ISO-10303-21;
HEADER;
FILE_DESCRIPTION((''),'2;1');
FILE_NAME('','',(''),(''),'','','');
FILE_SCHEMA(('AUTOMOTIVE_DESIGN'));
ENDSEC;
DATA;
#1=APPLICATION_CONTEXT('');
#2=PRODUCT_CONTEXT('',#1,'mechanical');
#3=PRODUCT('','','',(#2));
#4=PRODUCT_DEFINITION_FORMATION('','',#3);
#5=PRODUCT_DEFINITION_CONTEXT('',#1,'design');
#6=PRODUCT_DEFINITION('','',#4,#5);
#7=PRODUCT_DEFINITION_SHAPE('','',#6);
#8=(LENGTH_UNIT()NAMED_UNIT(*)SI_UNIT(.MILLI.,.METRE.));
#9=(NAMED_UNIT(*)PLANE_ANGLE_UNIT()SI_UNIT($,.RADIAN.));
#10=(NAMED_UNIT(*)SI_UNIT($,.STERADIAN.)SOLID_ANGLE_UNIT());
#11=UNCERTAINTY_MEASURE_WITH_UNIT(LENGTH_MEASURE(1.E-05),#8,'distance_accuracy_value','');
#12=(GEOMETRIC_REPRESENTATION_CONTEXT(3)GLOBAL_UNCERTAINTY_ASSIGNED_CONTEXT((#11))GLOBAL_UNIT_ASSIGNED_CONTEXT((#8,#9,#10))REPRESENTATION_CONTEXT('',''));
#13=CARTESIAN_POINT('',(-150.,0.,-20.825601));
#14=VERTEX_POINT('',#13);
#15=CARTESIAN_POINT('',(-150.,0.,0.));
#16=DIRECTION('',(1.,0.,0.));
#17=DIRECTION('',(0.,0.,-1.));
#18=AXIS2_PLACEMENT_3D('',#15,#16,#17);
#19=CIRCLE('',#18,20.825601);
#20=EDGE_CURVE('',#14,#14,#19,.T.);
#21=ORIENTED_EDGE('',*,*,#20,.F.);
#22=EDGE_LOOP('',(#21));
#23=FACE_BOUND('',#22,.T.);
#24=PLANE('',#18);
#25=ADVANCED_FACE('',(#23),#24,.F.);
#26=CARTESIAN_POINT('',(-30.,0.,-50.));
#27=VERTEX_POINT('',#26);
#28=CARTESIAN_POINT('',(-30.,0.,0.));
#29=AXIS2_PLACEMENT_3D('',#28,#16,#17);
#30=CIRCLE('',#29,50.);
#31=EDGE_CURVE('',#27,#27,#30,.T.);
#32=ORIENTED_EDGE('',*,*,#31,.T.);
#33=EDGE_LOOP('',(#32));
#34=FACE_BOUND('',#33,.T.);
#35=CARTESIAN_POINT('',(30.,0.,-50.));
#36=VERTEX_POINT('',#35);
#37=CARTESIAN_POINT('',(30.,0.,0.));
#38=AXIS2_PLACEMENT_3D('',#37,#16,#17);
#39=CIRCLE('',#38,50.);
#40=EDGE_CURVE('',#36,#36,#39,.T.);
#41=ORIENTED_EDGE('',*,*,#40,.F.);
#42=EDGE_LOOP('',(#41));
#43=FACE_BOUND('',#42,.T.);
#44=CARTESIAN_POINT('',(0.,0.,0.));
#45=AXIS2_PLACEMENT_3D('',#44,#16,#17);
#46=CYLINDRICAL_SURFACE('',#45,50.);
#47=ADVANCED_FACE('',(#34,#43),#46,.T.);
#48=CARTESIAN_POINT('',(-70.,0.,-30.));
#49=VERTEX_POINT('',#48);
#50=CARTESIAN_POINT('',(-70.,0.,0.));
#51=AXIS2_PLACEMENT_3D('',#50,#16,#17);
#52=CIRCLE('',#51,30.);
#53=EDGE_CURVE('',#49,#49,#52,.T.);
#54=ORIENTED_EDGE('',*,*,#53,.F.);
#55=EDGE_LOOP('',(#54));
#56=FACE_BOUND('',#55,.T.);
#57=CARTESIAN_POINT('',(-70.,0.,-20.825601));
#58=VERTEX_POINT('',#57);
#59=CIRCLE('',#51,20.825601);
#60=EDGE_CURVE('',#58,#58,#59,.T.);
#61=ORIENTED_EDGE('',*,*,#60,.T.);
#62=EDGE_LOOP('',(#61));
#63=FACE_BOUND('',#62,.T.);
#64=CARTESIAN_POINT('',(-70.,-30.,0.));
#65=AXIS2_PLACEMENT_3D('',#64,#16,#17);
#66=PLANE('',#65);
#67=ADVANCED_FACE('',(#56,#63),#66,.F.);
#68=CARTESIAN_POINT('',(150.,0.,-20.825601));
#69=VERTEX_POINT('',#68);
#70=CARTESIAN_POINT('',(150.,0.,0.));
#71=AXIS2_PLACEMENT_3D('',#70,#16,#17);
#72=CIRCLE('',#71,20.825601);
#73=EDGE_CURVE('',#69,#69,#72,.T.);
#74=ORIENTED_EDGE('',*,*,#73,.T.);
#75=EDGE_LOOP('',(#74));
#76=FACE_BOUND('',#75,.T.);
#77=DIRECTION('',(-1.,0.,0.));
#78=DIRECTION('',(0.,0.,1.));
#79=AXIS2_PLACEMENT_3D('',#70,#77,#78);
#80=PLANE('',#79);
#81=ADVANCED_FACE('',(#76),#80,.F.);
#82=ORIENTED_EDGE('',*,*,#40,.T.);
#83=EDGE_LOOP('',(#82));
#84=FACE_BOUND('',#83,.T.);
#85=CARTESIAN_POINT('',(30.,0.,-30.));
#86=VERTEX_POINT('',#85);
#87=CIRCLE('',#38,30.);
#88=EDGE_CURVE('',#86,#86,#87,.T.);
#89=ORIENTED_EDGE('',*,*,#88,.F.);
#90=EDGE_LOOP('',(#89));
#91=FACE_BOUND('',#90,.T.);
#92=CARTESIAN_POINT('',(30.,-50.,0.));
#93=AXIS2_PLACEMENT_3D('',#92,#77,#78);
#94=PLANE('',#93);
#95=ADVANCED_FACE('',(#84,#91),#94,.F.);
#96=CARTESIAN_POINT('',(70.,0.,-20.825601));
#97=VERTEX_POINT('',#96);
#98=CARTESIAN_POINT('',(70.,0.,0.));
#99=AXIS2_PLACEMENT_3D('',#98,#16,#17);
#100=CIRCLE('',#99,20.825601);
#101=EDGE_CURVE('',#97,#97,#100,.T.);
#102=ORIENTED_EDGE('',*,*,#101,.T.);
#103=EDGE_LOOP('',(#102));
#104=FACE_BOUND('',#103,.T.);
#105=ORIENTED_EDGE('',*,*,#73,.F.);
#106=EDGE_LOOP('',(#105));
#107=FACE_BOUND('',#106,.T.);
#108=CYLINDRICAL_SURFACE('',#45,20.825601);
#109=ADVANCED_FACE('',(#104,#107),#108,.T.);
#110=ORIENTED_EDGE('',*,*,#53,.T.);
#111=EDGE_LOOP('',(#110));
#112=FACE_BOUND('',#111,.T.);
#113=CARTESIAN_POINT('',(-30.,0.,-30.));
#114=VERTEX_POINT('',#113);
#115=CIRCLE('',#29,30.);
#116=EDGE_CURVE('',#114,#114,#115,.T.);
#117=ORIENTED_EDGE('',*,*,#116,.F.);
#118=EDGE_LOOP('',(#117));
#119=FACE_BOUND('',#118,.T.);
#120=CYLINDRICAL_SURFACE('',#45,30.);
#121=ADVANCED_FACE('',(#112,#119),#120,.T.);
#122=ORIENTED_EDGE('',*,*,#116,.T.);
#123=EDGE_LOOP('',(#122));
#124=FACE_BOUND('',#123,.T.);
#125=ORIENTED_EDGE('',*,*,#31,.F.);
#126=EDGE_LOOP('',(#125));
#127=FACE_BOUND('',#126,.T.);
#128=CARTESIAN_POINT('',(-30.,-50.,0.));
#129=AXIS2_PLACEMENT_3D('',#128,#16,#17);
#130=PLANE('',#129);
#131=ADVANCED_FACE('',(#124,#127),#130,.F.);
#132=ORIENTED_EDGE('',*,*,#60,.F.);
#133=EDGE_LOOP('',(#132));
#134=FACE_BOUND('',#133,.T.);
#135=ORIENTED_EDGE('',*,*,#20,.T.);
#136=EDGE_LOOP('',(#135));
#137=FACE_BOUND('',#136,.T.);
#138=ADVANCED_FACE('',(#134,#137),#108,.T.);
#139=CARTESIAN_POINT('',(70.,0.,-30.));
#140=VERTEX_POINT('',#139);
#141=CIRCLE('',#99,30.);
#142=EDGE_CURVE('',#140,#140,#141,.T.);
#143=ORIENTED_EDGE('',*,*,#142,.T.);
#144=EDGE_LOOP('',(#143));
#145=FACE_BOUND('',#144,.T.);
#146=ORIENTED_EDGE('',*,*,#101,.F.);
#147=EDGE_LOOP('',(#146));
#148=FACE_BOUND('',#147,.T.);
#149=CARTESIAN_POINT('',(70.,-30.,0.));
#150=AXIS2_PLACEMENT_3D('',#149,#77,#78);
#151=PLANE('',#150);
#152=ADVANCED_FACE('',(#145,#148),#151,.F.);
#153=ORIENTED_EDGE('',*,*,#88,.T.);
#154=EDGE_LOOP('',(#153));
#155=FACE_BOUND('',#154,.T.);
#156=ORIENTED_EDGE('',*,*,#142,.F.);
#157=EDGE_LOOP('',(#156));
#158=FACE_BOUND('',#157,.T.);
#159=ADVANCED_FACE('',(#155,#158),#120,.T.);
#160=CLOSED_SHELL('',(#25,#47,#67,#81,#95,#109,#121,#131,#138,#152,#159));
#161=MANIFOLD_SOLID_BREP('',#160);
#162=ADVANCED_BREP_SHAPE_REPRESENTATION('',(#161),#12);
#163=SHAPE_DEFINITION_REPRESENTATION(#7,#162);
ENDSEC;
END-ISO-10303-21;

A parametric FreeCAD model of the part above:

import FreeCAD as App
import Part
import Sketcher

doc = App.newDocument("Part")
body = doc.addObject("PartDesign::Body", "Body")

# Sketch on XY plane
sketch1 = doc.addObject("Sketcher::SketchObject", "Sketch")
body.addObject(sketch1)
sketch1.AttachmentSupport = (doc.XY_Plane, [""])
sketch1.MapMode = "FlatFace"
sketch1.addGeometry(Part.LineSegment(App.Vector(-30, -50, 0), App.Vector(30, -50, 0)), False)
sketch1.addGeometry(Part.LineSegment(App.Vector(30, -50, 0), App.Vector(30, -30, 0)), False)
sketch1.addGeometry(Part.LineSegment(App.Vector(30, -30, 0), App.Vector(70, -30, 0)), False)
sketch1.addGeometry(Part.LineSegment(App.Vector(70, -30, 0), App.Vector(70, -20.825601, 0)), False)
sketch1.addGeometry(Part.LineSegment(App.Vector(70, -20.825601, 0), App.Vector(150, -20.825601, 0)), False)
sketch1.addGeometry(Part.LineSegment(App.Vector(150, -20.825601, 0), App.Vector(150, 0, 0)), False)
sketch1.addGeometry(Part.LineSegment(App.Vector(150, 0, 0), App.Vector(-150, 0, 0)), False)
sketch1.addGeometry(Part.LineSegment(App.Vector(-150, 0, 0), App.Vector(-150, -20.825601, 0)), False)
sketch1.addGeometry(Part.LineSegment(App.Vector(-150, -20.825601, 0), App.Vector(-70, -20.825601, 0)), False)
sketch1.addGeometry(Part.LineSegment(App.Vector(-70, -20.825601, 0), App.Vector(-70, -30, 0)), False)
sketch1.addGeometry(Part.LineSegment(App.Vector(-70, -30, 0), App.Vector(-30, -30, 0)), False)
sketch1.addGeometry(Part.LineSegment(App.Vector(-30, -30, 0), App.Vector(-30, -50, 0)), False)
sketch1.addConstraint(Sketcher.Constraint("Coincident", 0, 2, 1, 1))
sketch1.addConstraint(Sketcher.Constraint("Coincident", 1, 2, 2, 1))
sketch1.addConstraint(Sketcher.Constraint("Coincident", 2, 2, 3, 1))
sketch1.addConstraint(Sketcher.Constraint("Coincident", 3, 2, 4, 1))
sketch1.addConstraint(Sketcher.Constraint("Coincident", 4, 2, 5, 1))
sketch1.addConstraint(Sketcher.Constraint("Coincident", 5, 2, 6, 1))
sketch1.addConstraint(Sketcher.Constraint("Coincident", 6, 2, 7, 1))
sketch1.addConstraint(Sketcher.Constraint("Coincident", 7, 2, 8, 1))
sketch1.addConstraint(Sketcher.Constraint("Coincident", 8, 2, 9, 1))
sketch1.addConstraint(Sketcher.Constraint("Coincident", 9, 2, 10, 1))
sketch1.addConstraint(Sketcher.Constraint("Coincident", 10, 2, 11, 1))
sketch1.addConstraint(Sketcher.Constraint("Coincident", 11, 2, 0, 1))
sketch1.addConstraint(Sketcher.Constraint("Horizontal", 0))
sketch1.addConstraint(Sketcher.Constraint("Vertical", 1))
sketch1.addConstraint(Sketcher.Constraint("Horizontal", 2))
sketch1.addConstraint(Sketcher.Constraint("Vertical", 3))
sketch1.addConstraint(Sketcher.Constraint("Horizontal", 4))
sketch1.addConstraint(Sketcher.Constraint("Vertical", 5))
sketch1.addConstraint(Sketcher.Constraint("Horizontal", 6))
sketch1.addConstraint(Sketcher.Constraint("Vertical", 7))
sketch1.addConstraint(Sketcher.Constraint("Horizontal", 8))
sketch1.addConstraint(Sketcher.Constraint("Vertical", 9))
sketch1.addConstraint(Sketcher.Constraint("Horizontal", 10))
sketch1.addConstraint(Sketcher.Constraint("Vertical", 11))
sketch1.addConstraint(Sketcher.Constraint("Symmetric", 5, 2, 6, 2, -1, 1))
sketch1.addConstraint(Sketcher.Constraint("Symmetric", 3, 2, 8, 2, -2))
sketch1.addConstraint(Sketcher.Constraint("Symmetric", 1, 2, 10, 2, -2))
sketch1.addConstraint(Sketcher.Constraint("DistanceX", 0, 1, 0, 2, 60.0))
sketch1.addConstraint(Sketcher.Constraint("DistanceX", 2, 1, 2, 2, 40.0))
sketch1.addConstraint(Sketcher.Constraint("DistanceX", 4, 1, 4, 2, 80.0))
sketch1.addConstraint(Sketcher.Constraint("DistanceY", 1, 1, 1, 2, 20.0))
sketch1.addConstraint(Sketcher.Constraint("DistanceY", 0, 2, -1, 1, 50.0))
sketch1.addConstraint(Sketcher.Constraint("DistanceY", 3, 1, 3, 2, 9.174399))
revolution = doc.addObject("PartDesign::Revolution", "Revolution")
body.addObject(revolution)
revolution.Profile = sketch1
revolution.ReferenceAxis = (sketch1, ["H_Axis"])
revolution.Angle = 360

doc.recompute()
